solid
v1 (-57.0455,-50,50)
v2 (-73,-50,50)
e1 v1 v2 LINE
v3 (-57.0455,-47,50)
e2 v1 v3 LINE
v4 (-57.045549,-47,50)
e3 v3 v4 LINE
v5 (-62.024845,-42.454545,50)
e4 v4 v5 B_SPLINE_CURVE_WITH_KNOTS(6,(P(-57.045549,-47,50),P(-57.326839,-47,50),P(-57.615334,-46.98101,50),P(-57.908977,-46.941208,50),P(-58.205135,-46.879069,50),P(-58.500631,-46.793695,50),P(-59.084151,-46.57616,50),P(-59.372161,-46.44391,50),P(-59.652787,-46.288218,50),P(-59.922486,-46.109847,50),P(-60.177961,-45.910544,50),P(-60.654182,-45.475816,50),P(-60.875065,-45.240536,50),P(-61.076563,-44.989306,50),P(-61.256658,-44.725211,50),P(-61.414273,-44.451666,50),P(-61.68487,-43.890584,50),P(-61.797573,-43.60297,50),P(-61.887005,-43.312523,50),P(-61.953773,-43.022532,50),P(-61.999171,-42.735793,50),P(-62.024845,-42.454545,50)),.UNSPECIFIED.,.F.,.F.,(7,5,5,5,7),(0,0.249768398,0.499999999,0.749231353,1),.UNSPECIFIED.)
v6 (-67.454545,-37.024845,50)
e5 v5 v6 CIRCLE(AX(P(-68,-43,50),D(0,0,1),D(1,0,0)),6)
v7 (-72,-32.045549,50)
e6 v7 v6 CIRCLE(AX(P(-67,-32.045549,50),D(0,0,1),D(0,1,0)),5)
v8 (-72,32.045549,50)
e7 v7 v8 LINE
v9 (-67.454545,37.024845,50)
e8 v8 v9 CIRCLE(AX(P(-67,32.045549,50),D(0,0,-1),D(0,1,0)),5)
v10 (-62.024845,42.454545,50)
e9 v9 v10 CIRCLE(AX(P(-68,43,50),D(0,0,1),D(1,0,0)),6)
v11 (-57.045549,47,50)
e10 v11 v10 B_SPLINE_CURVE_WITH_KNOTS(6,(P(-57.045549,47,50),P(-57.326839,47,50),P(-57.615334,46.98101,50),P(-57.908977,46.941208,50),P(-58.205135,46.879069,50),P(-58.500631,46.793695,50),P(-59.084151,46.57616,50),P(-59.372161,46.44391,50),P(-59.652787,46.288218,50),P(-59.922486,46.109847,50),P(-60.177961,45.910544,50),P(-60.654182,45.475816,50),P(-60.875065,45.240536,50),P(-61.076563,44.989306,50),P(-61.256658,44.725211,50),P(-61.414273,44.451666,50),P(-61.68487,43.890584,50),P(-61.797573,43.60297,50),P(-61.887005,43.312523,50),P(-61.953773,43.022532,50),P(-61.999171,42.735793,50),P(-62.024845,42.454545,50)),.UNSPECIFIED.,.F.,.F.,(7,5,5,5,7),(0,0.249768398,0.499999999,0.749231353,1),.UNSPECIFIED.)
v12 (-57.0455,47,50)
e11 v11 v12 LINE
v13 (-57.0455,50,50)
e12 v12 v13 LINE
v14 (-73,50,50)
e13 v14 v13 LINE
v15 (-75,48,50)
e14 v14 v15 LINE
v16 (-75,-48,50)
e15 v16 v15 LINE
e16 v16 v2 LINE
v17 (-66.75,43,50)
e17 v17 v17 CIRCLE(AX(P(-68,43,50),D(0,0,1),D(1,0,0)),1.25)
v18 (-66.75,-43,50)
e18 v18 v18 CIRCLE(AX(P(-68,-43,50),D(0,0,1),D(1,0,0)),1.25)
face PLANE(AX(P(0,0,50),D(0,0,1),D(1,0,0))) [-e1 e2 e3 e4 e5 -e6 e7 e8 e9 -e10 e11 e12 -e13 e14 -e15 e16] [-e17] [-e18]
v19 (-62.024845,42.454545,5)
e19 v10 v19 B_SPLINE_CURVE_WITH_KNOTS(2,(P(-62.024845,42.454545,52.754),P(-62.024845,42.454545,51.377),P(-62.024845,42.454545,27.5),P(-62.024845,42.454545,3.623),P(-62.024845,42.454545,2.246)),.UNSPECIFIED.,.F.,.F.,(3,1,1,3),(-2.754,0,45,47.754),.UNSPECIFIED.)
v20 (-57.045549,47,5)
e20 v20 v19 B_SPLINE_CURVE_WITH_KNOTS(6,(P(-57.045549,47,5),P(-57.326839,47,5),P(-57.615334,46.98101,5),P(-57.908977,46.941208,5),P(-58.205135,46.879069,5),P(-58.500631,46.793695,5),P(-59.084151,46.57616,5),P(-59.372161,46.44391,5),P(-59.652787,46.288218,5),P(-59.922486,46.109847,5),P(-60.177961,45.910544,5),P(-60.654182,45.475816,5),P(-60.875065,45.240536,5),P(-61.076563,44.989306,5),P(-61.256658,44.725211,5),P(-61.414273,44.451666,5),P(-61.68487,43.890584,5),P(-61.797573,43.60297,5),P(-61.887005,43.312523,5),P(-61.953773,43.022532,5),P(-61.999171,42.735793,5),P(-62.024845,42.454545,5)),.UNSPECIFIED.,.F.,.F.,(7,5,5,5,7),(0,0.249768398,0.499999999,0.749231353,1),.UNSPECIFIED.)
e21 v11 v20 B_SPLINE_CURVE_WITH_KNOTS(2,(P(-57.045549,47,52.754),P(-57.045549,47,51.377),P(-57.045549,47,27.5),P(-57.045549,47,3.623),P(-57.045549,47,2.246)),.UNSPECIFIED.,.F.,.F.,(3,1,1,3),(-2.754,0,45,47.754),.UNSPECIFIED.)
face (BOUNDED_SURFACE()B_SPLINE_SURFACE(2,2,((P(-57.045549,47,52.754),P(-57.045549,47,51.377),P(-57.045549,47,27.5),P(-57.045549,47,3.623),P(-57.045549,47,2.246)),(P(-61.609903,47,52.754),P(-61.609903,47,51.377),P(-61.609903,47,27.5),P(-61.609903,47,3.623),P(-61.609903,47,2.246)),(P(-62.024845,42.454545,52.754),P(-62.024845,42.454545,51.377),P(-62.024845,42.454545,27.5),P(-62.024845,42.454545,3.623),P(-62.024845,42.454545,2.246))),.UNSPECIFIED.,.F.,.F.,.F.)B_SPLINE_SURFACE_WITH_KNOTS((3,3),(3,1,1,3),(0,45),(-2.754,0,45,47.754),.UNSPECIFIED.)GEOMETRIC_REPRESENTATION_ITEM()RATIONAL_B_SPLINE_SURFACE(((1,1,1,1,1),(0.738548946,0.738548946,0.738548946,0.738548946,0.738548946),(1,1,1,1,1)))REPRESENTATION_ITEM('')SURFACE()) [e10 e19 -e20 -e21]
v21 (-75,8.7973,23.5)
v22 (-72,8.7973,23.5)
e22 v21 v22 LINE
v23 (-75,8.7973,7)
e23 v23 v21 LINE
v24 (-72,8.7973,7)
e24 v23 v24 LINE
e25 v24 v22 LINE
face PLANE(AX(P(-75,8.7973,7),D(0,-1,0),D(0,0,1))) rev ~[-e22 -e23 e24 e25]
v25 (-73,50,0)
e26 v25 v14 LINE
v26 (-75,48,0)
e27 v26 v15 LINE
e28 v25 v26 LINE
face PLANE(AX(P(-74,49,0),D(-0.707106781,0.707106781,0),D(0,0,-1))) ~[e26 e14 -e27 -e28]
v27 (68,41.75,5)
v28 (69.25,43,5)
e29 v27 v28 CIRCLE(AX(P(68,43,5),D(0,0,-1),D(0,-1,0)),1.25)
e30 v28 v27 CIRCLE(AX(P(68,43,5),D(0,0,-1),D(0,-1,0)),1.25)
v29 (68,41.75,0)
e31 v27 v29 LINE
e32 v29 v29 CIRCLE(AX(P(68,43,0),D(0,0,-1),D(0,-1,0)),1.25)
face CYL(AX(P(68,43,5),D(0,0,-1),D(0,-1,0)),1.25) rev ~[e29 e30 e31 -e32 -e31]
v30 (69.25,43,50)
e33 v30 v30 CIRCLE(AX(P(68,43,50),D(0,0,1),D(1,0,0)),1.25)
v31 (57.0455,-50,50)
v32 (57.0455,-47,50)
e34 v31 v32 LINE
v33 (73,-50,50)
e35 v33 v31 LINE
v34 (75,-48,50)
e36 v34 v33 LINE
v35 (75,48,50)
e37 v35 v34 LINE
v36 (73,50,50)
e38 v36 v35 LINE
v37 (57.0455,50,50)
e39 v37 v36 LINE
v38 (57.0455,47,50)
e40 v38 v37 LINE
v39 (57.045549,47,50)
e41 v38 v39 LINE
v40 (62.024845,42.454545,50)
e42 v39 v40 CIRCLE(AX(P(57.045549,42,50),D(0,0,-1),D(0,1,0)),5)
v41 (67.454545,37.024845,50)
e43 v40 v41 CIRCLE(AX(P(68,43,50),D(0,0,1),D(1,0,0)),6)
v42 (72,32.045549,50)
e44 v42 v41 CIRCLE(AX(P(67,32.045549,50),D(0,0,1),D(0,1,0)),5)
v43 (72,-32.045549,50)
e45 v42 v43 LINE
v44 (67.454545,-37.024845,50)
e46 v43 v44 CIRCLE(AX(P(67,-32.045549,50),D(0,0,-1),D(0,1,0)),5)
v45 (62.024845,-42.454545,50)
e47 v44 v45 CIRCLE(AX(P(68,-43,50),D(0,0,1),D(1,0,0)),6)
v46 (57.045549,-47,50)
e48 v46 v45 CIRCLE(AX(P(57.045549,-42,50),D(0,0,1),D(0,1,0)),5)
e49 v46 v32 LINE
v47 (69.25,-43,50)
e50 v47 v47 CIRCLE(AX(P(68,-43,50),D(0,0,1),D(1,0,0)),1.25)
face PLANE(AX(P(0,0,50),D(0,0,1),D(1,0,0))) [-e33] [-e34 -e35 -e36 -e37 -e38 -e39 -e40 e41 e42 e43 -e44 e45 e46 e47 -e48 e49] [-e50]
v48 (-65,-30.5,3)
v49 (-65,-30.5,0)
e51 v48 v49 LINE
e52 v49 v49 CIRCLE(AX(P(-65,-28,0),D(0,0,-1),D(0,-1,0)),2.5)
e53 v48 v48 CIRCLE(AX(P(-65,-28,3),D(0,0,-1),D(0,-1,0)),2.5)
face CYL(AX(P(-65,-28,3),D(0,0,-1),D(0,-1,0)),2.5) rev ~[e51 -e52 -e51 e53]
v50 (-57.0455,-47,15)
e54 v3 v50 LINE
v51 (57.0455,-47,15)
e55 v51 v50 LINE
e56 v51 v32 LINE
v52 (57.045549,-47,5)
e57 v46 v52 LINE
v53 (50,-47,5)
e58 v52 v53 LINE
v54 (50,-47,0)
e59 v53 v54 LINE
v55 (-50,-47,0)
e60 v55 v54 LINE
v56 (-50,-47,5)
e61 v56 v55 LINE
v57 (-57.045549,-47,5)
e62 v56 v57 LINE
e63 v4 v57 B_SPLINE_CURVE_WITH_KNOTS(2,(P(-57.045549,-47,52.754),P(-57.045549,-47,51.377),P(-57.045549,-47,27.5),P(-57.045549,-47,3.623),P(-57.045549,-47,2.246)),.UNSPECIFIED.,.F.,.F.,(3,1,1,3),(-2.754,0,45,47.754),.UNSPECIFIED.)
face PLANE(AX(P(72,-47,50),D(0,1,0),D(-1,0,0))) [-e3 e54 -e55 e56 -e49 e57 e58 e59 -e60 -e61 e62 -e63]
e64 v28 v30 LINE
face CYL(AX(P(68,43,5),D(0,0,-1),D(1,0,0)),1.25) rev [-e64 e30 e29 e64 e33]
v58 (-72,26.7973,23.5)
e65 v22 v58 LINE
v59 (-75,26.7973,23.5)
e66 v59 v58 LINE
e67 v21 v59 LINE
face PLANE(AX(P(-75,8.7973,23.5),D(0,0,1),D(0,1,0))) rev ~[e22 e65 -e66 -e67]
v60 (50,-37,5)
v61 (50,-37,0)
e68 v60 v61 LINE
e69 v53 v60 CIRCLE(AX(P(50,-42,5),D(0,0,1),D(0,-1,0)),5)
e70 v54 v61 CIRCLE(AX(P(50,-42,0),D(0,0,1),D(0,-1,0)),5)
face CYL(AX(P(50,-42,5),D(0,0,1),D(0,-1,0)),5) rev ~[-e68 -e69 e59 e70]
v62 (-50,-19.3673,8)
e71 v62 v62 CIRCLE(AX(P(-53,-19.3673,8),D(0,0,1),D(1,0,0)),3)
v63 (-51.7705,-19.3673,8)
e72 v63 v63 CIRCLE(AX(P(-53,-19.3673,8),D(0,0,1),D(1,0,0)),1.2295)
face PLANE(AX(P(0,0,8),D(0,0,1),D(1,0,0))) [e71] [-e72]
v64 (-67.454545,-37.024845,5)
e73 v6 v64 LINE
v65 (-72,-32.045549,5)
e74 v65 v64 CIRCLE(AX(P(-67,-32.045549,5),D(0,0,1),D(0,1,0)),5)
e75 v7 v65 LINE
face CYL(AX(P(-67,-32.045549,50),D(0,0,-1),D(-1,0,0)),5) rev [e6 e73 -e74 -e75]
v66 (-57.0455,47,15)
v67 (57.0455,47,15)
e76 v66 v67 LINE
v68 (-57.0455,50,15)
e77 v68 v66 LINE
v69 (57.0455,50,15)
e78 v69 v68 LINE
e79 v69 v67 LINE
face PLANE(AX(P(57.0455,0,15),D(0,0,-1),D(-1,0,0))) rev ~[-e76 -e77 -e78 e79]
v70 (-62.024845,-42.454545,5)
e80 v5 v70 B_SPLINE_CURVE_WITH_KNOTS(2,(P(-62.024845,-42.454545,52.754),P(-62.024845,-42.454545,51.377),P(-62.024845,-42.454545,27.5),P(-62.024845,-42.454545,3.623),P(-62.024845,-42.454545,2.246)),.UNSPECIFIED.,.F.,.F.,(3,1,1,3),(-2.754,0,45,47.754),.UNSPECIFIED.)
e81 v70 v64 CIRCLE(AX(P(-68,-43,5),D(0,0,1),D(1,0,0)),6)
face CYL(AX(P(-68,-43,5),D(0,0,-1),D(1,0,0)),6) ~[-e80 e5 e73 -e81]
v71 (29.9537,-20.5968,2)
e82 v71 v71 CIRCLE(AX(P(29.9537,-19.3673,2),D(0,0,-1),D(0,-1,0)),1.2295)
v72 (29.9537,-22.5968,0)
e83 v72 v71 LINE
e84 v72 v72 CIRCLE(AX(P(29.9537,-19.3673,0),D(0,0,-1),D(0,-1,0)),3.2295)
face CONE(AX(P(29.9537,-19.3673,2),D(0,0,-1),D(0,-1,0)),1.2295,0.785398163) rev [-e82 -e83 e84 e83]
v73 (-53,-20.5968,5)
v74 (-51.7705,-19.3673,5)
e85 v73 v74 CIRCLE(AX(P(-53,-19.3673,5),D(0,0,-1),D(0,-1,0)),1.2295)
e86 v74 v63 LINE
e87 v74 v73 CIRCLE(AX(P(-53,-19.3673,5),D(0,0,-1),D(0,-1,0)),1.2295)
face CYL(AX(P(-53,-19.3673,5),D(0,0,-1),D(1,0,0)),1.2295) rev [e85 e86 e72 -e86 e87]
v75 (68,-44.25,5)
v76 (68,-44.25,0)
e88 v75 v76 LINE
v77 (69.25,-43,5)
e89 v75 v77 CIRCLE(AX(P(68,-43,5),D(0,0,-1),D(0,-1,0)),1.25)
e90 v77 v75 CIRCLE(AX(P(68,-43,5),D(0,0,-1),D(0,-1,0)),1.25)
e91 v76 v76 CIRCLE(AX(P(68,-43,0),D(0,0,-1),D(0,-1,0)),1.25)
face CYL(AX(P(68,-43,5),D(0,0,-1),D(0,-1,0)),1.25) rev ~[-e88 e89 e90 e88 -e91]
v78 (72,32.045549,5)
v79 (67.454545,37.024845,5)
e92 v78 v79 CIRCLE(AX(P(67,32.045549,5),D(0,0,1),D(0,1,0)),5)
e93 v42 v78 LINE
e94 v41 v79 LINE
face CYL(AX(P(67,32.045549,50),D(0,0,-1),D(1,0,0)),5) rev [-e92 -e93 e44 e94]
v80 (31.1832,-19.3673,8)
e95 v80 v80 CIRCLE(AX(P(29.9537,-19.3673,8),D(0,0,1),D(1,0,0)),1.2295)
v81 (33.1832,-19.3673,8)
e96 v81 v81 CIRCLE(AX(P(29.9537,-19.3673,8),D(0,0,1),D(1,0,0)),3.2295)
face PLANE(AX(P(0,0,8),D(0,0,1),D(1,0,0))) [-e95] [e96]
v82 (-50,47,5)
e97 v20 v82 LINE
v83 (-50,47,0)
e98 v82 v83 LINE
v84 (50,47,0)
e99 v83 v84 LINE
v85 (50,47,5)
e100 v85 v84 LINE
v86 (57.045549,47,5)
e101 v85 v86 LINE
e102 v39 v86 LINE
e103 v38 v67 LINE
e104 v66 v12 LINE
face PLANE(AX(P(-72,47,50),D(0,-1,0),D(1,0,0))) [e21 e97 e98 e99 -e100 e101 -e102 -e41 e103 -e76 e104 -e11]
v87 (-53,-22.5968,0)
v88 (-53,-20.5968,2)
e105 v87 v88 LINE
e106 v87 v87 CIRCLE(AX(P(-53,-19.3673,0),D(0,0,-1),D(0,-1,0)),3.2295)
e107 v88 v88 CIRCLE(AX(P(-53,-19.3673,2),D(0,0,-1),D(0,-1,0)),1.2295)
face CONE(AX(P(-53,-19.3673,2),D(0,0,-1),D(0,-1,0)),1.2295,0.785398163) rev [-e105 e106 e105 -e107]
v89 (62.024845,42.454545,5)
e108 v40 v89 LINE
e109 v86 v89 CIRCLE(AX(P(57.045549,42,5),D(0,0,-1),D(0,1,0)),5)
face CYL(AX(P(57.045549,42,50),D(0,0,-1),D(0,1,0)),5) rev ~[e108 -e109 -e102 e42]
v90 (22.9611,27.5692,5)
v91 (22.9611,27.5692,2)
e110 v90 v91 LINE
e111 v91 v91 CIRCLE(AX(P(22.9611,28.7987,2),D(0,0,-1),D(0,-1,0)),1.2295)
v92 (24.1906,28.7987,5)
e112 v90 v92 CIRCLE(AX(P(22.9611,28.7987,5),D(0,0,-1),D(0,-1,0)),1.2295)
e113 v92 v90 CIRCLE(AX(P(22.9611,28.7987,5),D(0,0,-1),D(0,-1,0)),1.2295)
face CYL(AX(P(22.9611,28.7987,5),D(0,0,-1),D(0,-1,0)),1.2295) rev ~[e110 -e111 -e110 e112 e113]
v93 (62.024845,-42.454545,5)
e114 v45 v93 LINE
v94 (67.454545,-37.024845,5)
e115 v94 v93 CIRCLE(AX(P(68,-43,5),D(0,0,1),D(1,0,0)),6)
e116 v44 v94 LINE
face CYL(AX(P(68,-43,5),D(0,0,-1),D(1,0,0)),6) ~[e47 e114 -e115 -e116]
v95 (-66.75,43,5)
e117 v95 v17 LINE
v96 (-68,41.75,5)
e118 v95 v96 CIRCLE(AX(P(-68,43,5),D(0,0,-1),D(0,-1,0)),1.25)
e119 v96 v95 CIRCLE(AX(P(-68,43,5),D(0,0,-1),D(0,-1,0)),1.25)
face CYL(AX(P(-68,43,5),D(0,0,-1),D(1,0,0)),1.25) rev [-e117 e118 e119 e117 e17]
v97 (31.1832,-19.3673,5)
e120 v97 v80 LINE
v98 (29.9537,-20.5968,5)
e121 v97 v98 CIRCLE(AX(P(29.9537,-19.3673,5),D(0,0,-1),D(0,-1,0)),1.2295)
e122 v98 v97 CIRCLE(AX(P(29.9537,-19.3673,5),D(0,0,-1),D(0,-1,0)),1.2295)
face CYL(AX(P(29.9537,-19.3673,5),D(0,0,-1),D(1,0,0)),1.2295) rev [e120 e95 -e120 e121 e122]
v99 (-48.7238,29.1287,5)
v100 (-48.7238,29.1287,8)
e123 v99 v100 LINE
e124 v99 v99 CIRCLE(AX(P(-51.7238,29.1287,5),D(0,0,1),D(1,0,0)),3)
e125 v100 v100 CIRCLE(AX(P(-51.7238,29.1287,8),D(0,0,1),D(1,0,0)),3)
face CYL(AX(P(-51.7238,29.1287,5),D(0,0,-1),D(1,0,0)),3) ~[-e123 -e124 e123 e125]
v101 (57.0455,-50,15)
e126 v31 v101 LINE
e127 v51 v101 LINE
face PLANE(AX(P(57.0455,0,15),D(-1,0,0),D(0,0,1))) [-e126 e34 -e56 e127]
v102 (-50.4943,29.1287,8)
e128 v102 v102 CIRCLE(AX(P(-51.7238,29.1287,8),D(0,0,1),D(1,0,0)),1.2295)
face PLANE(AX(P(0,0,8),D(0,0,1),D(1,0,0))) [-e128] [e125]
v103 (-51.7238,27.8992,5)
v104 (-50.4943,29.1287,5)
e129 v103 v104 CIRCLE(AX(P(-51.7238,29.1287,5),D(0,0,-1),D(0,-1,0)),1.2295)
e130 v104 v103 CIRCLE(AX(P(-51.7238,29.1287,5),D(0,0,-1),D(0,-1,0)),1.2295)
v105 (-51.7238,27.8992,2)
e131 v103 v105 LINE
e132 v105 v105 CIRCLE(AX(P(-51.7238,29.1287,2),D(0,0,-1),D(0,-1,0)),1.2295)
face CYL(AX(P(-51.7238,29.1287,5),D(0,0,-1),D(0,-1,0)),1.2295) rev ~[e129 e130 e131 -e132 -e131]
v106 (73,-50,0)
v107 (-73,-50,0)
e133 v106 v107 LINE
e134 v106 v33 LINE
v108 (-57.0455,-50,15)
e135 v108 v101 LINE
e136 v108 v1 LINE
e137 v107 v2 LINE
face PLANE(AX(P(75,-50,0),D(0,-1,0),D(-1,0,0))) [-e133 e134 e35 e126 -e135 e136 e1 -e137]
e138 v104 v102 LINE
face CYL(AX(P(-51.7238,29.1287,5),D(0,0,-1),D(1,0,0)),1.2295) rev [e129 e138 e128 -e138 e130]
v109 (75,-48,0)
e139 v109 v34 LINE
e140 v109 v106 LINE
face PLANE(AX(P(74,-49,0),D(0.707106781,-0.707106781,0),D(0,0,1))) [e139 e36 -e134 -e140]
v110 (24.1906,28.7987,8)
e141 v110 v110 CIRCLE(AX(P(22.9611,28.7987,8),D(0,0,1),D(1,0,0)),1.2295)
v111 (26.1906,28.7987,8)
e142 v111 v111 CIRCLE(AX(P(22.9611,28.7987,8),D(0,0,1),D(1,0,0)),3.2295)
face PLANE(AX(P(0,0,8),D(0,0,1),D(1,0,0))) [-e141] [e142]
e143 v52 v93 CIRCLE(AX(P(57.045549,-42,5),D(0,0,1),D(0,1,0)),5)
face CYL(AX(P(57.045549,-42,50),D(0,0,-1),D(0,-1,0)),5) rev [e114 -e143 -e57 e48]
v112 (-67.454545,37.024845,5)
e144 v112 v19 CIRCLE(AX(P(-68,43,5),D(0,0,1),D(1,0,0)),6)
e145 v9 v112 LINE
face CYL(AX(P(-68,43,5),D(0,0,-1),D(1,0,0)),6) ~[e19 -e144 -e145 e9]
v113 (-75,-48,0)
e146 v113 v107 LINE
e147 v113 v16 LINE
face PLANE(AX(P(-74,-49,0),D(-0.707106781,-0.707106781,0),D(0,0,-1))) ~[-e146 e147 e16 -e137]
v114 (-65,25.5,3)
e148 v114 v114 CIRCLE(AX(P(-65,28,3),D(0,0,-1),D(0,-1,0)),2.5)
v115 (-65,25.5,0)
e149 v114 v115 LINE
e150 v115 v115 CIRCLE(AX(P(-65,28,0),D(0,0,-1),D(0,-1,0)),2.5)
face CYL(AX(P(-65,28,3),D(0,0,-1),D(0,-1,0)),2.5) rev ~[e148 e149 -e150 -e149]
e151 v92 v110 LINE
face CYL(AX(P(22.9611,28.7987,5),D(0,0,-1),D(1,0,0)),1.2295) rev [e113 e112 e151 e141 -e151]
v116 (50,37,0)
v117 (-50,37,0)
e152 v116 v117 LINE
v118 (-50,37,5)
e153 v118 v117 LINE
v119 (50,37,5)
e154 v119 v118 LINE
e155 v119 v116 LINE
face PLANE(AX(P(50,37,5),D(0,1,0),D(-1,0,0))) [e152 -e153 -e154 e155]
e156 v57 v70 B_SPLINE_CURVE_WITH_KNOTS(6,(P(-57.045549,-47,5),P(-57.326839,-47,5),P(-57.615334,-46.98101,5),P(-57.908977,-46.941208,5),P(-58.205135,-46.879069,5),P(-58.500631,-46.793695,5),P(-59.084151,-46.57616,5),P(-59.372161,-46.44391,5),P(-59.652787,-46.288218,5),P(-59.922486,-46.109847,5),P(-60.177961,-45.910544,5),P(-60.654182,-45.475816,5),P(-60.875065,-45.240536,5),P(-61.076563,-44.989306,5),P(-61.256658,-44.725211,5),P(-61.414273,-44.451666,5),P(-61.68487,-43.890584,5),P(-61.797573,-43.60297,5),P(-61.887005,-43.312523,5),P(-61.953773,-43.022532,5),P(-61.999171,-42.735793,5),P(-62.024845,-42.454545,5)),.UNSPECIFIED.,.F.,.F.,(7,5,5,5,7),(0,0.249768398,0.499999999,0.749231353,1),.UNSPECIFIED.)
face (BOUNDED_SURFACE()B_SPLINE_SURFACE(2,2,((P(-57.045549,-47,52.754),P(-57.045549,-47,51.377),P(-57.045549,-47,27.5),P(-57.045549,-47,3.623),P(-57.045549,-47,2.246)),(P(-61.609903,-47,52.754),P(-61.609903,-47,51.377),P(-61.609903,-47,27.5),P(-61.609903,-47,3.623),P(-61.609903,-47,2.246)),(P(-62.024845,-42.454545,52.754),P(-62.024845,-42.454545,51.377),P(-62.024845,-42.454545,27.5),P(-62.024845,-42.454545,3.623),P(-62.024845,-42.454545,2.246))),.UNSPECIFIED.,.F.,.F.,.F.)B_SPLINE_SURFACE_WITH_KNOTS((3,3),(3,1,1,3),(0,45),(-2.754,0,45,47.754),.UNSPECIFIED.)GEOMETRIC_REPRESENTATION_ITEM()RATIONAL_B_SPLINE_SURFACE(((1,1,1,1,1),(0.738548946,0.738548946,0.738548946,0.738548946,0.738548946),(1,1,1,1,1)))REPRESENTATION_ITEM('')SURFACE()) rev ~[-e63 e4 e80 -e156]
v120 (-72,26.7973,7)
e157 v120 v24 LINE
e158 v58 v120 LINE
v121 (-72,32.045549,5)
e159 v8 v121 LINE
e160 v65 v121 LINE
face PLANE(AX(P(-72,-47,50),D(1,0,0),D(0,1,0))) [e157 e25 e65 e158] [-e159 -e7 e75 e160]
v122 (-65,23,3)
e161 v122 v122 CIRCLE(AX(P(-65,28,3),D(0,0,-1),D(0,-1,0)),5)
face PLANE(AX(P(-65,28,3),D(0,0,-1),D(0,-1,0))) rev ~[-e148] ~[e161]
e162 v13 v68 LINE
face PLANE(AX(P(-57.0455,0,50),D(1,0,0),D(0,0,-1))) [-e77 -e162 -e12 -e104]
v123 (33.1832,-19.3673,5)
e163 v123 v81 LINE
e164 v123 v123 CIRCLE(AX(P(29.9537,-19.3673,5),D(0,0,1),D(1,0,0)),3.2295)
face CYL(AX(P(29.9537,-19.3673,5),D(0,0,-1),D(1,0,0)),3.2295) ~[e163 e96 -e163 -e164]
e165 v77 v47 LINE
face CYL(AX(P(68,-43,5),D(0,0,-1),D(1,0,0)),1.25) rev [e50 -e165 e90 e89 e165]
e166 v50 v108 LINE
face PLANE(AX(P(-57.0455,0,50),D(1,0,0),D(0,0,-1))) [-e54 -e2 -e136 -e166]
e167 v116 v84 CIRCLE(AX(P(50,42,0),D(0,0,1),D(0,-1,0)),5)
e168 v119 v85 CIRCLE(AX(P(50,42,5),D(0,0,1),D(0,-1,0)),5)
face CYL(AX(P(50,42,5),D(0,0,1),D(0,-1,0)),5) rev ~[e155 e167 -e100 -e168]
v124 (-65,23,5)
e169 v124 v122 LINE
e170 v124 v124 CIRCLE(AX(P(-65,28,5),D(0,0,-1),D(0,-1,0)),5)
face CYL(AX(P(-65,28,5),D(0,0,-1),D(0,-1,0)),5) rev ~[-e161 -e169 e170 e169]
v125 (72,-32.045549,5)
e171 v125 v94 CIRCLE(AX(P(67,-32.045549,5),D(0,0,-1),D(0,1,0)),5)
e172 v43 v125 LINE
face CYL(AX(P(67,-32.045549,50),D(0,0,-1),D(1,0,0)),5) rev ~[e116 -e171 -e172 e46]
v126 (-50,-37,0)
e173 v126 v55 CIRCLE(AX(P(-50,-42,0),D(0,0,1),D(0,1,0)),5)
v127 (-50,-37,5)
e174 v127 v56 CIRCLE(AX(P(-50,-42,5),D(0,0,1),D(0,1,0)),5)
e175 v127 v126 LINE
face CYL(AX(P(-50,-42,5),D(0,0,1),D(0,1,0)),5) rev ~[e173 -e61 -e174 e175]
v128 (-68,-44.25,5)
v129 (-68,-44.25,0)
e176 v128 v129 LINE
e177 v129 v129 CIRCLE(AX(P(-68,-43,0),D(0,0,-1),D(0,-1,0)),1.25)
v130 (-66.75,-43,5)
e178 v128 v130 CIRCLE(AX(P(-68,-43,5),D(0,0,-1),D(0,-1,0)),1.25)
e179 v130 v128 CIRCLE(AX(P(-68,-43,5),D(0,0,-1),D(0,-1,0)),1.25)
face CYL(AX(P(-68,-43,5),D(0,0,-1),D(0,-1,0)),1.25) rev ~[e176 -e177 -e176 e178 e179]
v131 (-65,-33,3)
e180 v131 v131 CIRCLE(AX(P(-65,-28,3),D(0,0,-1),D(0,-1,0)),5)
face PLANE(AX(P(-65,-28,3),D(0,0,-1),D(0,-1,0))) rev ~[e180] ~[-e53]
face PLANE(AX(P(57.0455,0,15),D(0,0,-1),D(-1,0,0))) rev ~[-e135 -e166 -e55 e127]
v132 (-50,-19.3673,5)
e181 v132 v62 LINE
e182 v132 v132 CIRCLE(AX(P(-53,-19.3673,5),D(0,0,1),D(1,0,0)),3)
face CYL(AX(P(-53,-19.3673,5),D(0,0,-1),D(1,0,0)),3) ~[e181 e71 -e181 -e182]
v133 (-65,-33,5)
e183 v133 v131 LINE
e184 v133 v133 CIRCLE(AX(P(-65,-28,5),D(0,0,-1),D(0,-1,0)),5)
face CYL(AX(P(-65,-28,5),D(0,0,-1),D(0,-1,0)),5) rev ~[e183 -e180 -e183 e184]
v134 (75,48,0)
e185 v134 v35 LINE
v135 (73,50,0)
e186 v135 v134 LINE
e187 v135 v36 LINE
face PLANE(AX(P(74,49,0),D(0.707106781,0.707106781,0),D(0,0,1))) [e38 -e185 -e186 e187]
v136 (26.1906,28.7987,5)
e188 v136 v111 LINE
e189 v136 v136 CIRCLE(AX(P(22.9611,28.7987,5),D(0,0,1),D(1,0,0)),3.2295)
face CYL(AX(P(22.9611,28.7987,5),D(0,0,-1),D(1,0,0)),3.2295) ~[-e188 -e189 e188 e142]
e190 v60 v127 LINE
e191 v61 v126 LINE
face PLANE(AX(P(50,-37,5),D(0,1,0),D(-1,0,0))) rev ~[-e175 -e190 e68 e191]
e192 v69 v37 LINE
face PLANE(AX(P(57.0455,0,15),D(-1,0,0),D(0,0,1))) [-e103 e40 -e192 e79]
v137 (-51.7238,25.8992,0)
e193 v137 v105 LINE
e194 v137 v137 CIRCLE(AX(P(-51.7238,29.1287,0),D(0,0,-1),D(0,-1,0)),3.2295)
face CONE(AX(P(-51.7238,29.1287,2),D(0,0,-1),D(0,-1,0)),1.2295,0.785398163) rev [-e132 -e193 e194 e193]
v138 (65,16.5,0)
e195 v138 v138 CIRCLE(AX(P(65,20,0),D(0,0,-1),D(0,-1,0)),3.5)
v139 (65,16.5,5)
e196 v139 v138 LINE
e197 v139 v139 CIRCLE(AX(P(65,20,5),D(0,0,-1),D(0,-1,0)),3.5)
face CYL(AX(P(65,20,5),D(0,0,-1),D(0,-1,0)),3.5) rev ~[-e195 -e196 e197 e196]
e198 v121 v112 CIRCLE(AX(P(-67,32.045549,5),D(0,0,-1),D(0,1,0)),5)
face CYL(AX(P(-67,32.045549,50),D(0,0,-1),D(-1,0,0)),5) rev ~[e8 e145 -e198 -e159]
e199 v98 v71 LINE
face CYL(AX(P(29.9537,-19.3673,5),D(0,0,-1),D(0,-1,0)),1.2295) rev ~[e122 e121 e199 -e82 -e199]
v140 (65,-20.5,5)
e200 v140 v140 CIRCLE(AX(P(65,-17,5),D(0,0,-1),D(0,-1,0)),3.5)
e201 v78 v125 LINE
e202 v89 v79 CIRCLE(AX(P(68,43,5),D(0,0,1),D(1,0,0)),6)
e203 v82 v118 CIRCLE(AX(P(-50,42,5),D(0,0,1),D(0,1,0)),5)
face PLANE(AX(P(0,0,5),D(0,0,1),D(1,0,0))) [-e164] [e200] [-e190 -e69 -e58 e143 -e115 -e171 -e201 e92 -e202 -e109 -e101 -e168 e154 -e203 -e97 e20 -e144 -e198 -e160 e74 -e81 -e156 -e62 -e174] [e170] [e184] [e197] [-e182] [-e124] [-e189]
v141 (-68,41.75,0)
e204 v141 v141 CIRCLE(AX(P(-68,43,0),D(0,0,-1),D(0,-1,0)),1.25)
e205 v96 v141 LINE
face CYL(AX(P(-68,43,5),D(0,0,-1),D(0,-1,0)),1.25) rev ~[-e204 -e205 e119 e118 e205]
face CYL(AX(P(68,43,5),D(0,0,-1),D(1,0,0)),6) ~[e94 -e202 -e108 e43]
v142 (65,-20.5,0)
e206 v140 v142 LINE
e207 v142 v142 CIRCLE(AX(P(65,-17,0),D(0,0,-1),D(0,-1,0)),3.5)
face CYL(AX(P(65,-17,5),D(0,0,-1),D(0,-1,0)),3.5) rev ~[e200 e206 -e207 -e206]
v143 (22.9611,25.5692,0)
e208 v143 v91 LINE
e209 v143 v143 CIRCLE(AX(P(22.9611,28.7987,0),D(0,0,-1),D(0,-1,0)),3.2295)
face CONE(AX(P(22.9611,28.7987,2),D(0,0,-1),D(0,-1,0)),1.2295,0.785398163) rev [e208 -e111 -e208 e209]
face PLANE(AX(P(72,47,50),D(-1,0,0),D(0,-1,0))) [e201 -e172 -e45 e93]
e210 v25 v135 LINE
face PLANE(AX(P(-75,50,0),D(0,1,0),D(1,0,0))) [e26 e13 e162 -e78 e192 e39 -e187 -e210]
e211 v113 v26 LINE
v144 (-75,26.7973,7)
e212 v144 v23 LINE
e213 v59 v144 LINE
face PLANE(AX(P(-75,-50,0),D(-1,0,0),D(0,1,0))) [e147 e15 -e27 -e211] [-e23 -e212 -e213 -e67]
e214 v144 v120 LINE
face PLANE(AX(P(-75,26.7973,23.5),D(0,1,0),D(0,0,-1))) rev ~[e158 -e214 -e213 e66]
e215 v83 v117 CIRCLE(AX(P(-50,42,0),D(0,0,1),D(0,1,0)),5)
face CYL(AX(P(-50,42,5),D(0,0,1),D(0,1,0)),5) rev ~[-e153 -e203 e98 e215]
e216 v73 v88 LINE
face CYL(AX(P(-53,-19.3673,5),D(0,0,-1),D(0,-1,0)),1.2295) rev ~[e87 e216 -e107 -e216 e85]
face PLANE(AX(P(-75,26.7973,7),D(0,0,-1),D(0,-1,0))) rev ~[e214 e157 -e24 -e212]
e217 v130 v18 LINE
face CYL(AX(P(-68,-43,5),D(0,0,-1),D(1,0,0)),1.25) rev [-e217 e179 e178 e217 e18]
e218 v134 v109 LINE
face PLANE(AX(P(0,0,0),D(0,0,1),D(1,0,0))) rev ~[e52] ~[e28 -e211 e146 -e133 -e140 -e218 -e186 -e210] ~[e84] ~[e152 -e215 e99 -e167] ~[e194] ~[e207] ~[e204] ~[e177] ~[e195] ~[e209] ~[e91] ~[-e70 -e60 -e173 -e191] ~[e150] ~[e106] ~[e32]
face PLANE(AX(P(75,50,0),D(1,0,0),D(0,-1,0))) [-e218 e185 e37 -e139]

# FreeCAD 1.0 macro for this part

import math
import FreeCAD as App
import Part
import Sketcher
from FreeCAD import Vector
Q = App.Units.Quantity


def edges_at(feature, points):
    """Names of the edges that pass closest to the given points."""
    edges = feature.Shape.Edges
    near = lambda p: min(range(len(edges)), key=lambda i: edges[i].distToShape(Part.Vertex(*p))[0])
    return sorted({f"Edge{near(p) + 1}" for p in points})


def add_polygon(sketch, points):
    """Adds a closed chain of lines whose ends are joined by coincident constraints."""
    first, n = sketch.GeometryCount, len(points)
    for a, b in zip(points, points[1:] + points[:1]):
        sketch.addGeometry(Part.LineSegment(App.Vector(*a, 0), App.Vector(*b, 0)), False)
    for i in range(n):
        sketch.addConstraint(Sketcher.Constraint("Coincident", first + i, 2, first + (i + 1) % n, 1))

doc = App.newDocument("Part")
body = doc.addObject("PartDesign::Body", "Body")

sketch1 = body.newObject("Sketcher::SketchObject", "Sketch")
sketch1.AttachmentSupport = (doc.getObject("XY_Plane"), [""])
sketch1.MapMode = "FlatFace"
add_polygon(sketch1, [(75, 50), (-75, 50), (-75, -50), (75, -50)])
sketch1.addConstraint([
    Sketcher.Constraint("Horizontal", 0),
    Sketcher.Constraint("Vertical", 1),
    Sketcher.Constraint("Horizontal", 2),
    Sketcher.Constraint("Vertical", 3),
    Sketcher.Constraint("Symmetric", 0, 2, 2, 2, -1, 1),
    Sketcher.Constraint("DistanceX", 0, 2, 0, 1, Q("150 mm")),
    Sketcher.Constraint("DistanceY", 1, 2, 1, 1, Q("100 mm")),
])
pad1 = body.newObject("PartDesign::Pad", "Pad")
pad1.Profile = sketch1
pad1.Length = 50

sketch2 = body.newObject("Sketcher::SketchObject", "Sketch001")
sketch2.AttachmentSupport = (doc.getObject("XY_Plane"), [""])
sketch2.MapMode = "FlatFace"
sketch2.AttachmentOffset = App.Placement(Vector(0, 0, 50), App.Rotation())
add_polygon(sketch2, [(72, 47), (-72, 47), (-72, -47), (72, -47)])
sketch2.addConstraint([
    Sketcher.Constraint("Horizontal", 0),
    Sketcher.Constraint("Vertical", 1),
    Sketcher.Constraint("Horizontal", 2),
    Sketcher.Constraint("Vertical", 3),
    Sketcher.Constraint("Symmetric", 0, 2, 2, 2, -1, 1),
    Sketcher.Constraint("DistanceX", 0, 2, 0, 1, Q("144 mm")),
    Sketcher.Constraint("DistanceY", 1, 2, 1, 1, Q("94 mm")),
])
pocket1 = body.newObject("PartDesign::Pocket", "Pocket")
pocket1.Profile = sketch2
pocket1.Length = 45

sketch3 = body.newObject("Sketcher::SketchObject", "Sketch002")
sketch3.AttachmentSupport = (doc.getObject("YZ_Plane"), [""])
sketch3.MapMode = "FlatFace"
sketch3.AttachmentOffset = App.Placement(Vector(0, 0, -75), App.Rotation())
add_polygon(sketch3, [(9, 24), (27, 24), (27, 7), (9, 7)])
sketch3.addConstraint([
    Sketcher.Constraint("Horizontal", 0),
    Sketcher.Constraint("Vertical", 1),
    Sketcher.Constraint("Horizontal", 2),
    Sketcher.Constraint("Vertical", 3),
    Sketcher.Constraint("DistanceX", 0, 1, 0, 2, Q("18 mm")),
    Sketcher.Constraint("DistanceY", 1, 2, 1, 1, Q("16.5 mm")),
    Sketcher.Constraint("DistanceY", -1, 1, 1, 2, Q("7 mm")),
    Sketcher.Constraint("DistanceX", -1, 1, 0, 2, Q("26.7973 mm")),
])
pocket2 = body.newObject("PartDesign::Pocket", "Pocket001")
pocket2.Profile = sketch3
pocket2.Length = 3
pocket2.Reversed = True

sketch4 = body.newObject("Sketcher::SketchObject", "Sketch003")
sketch4.AttachmentSupport = (doc.getObject("XY_Plane"), [""])
sketch4.MapMode = "FlatFace"
sketch4.AttachmentOffset = App.Placement(Vector(0, 0, 5), App.Rotation())
sketch4.addGeometry([
    Part.Circle(Vector(-68, -43, 0), Vector(0, 0, 1), 1.2),
    Part.Circle(Vector(-68, 43, 0), Vector(0, 0, 1), 1.2),
    Part.Circle(Vector(68, -43, 0), Vector(0, 0, 1), 1.2),
    Part.Circle(Vector(68, 43, 0), Vector(0, 0, 1), 1.2),
], False)
sketch4.addConstraint([
    Sketcher.Constraint("Equal", 0, 1),
    Sketcher.Constraint("Equal", 1, 2),
    Sketcher.Constraint("Equal", 2, 3),
    Sketcher.Constraint("Symmetric", 1, 3, 2, 3, -1, 1),
    Sketcher.Constraint("Symmetric", 0, 3, 3, 3, -1, 1),
    Sketcher.Constraint("Symmetric", 0, 3, 2, 3, -2),
    Sketcher.Constraint("Diameter", 0, Q("2.5 mm")),
    Sketcher.Constraint("DistanceX", 0, 3, -1, 1, Q("68 mm")),
    Sketcher.Constraint("DistanceY", 0, 3, -1, 1, Q("43 mm")),
])
doc.recompute()
hole = body.newObject("PartDesign::Hole", "Hole")
hole.Profile = sketch4
hole.ThreadType = "None"
hole.Diameter = 2.5
hole.DepthType = "ThroughAll"

sketch5 = body.newObject("Sketcher::SketchObject", "Sketch004")
sketch5.AttachmentSupport = (doc.getObject("XY_Plane"), [""])
sketch5.MapMode = "FlatFace"
sketch5.AttachmentOffset = App.Placement(Vector(0, 0, 5), App.Rotation())
sketch5.addGeometry([
    Part.Circle(Vector(-68, -43, 0), Vector(0, 0, 1), 6),
    Part.Circle(Vector(-68, -43, 0), Vector(0, 0, 1), 1.2),
    Part.Circle(Vector(-68, 43, 0), Vector(0, 0, 1), 6),
    Part.Circle(Vector(-68, 43, 0), Vector(0, 0, 1), 1.2),
    Part.Circle(Vector(68, -43, 0), Vector(0, 0, 1), 6),
    Part.Circle(Vector(68, -43, 0), Vector(0, 0, 1), 1.2),
    Part.Circle(Vector(68, 43, 0), Vector(0, 0, 1), 6),
    Part.Circle(Vector(68, 43, 0), Vector(0, 0, 1), 1.2),
], False)
sketch5.addConstraint([
    Sketcher.Constraint("Coincident", 1, 3, 0, 3),
    Sketcher.Constraint("Coincident", 3, 3, 2, 3),
    Sketcher.Constraint("Coincident", 5, 3, 4, 3),
    Sketcher.Constraint("Coincident", 7, 3, 6, 3),
    Sketcher.Constraint("Equal", 0, 2),
    Sketcher.Constraint("Equal", 1, 3),
    Sketcher.Constraint("Equal", 2, 4),
    Sketcher.Constraint("Equal", 3, 5),
    Sketcher.Constraint("Equal", 4, 6),
    Sketcher.Constraint("Equal", 5, 7),
    Sketcher.Constraint("Symmetric", 2, 3, 4, 3, -1, 1),
    Sketcher.Constraint("Symmetric", 0, 3, 6, 3, -1, 1),
    Sketcher.Constraint("Symmetric", 0, 3, 4, 3, -2),
    Sketcher.Constraint("Diameter", 0, Q("12 mm")),
    Sketcher.Constraint("Diameter", 1, Q("2.5 mm")),
    Sketcher.Constraint("DistanceX", 0, 3, -1, 1, Q("68 mm")),
    Sketcher.Constraint("DistanceY", 0, 3, -1, 1, Q("43 mm")),
])
pad2 = body.newObject("PartDesign::Pad", "Pad001")
pad2.Profile = sketch5
pad2.Length = 45
doc.recompute()

fillet = body.newObject("PartDesign::Fillet", "Fillet")
fillet.Base = (pad2, edges_at(pad2, [
    (-72, 38.528, 27.5),
    (-63.528, 47, 27.5),
    (-63.528, -47, 27.5),
    (-72, -38.528, 27.5),
    (63.528, 47, 27.5),
    (63.528, -47, 27.5),
    (72, 38.528, 27.5),
    (72, -38.528, 27.5),
]))
fillet.Radius = 5

sketch6 = body.newObject("Sketcher::SketchObject", "Sketch005")
sketch6.AttachmentSupport = (doc.getObject("XY_Plane"), [""])
sketch6.MapMode = "FlatFace"
sketch6.AttachmentOffset = App.Placement(Vector(0, 0, 5), App.Rotation())
sketch6.addGeometry([
    Part.Circle(Vector(65, -17, 0), Vector(0, 0, 1), 3.5),
    Part.Circle(Vector(65, 20, 0), Vector(0, 0, 1), 3.5),
], False)
sketch6.addConstraint([
    Sketcher.Constraint("Equal", 0, 1),
    Sketcher.Constraint("Vertical", 0, 3, 1, 3),
    Sketcher.Constraint("Diameter", 0, Q("7 mm")),
    Sketcher.Constraint("DistanceX", -1, 1, 0, 3, Q("65 mm")),
    Sketcher.Constraint("DistanceY", 0, 3, -1, 1, Q("17 mm")),
    Sketcher.Constraint("DistanceY", -1, 1, 1, 3, Q("20 mm")),
])
doc.recompute()
hole2 = body.newObject("PartDesign::Hole", "Hole001")
hole2.Profile = sketch6
hole2.ThreadType = "None"
hole2.Diameter = 7
hole2.DepthType = "ThroughAll"

sketch7 = body.newObject("Sketcher::SketchObject", "Sketch006")
sketch7.AttachmentSupport = (doc.getObject("XY_Plane"), [""])
sketch7.MapMode = "FlatFace"
sketch7.AttachmentOffset = App.Placement(Vector(0, 0, 5), App.Rotation())
sketch7.addGeometry([
    Part.ArcOfCircle(Part.Circle(Vector(-50, -42, 0), Vector(0, 0, 1), 5), math.radians(90), math.radians(270)),
    Part.LineSegment(Vector(-50, -47, 0), Vector(50, -47, 0)),
    Part.ArcOfCircle(Part.Circle(Vector(50, -42, 0), Vector(0, 0, 1), 5), math.radians(-90), math.radians(90)),
    Part.LineSegment(Vector(50, -37, 0), Vector(-50, -37, 0)),
    Part.LineSegment(Vector(50, 47, 0), Vector(-50, 47, 0)),
    Part.ArcOfCircle(Part.Circle(Vector(-50, 42, 0), Vector(0, 0, 1), 5), math.radians(90), math.radians(270)),
    Part.LineSegment(Vector(-50, 37, 0), Vector(50, 37, 0)),
    Part.ArcOfCircle(Part.Circle(Vector(50, 42, 0), Vector(0, 0, 1), 5), math.radians(-90), math.radians(90)),
], False)
sketch7.addConstraint([
    Sketcher.Constraint("Tangent", 0, 2, 1, 1),
    Sketcher.Constraint("Tangent", 1, 2, 2, 1),
    Sketcher.Constraint("Tangent", 2, 2, 3, 1),
    Sketcher.Constraint("Tangent", 3, 2, 0, 1),
    Sketcher.Constraint("Tangent", 4, 2, 5, 1),
    Sketcher.Constraint("Tangent", 5, 2, 6, 1),
    Sketcher.Constraint("Tangent", 6, 2, 7, 1),
    Sketcher.Constraint("Tangent", 7, 2, 4, 1),
    Sketcher.Constraint("Horizontal", 1),
    Sketcher.Constraint("Horizontal", 3),
    Sketcher.Constraint("Horizontal", 4),
    Sketcher.Constraint("Horizontal", 6),
    Sketcher.Constraint("Equal", 2, 5),
    Sketcher.Constraint("Symmetric", 2, 3, 5, 3, -1, 1),
    Sketcher.Constraint("Vertical", 0, 3, 5, 3),
    Sketcher.Constraint("Vertical", 2, 3, 7, 3),
    Sketcher.Constraint("Radius", 0, Q("5 mm")),
    Sketcher.Constraint("DistanceX", 1, 1, 1, 2, Q("100 mm")),
    Sketcher.Constraint("DistanceY", 0, 3, -1, 1, Q("42 mm")),
])
pocket3 = body.newObject("PartDesign::Pocket", "Pocket002")
pocket3.Profile = sketch7
pocket3.Type = "ThroughAll"

sketch8 = body.newObject("Sketcher::SketchObject", "Sketch007")
sketch8.AttachmentSupport = (doc.getObject("XY_Plane"), [""])
sketch8.MapMode = "FlatFace"
sketch8.AttachmentOffset = App.Placement(Vector(0, 0, 5), App.Rotation())
sketch8.addGeometry([
    Part.Circle(Vector(-53, -19.4, 0), Vector(0, 0, 1), 1.2),
    Part.Circle(Vector(-51.7, 29.1, 0), Vector(0, 0, 1), 1.2),
    Part.Circle(Vector(30, -19.4, 0), Vector(0, 0, 1), 1.2),
    Part.Circle(Vector(23, 28.8, 0), Vector(0, 0, 1), 1.2),
], False)
sketch8.addConstraint([
    Sketcher.Constraint("Equal", 0, 1),
    Sketcher.Constraint("Equal", 1, 2),
    Sketcher.Constraint("Equal", 2, 3),
    Sketcher.Constraint("Horizontal", 0, 3, 2, 3),
    Sketcher.Constraint("Diameter", 0, Q("2.459 mm")),
    Sketcher.Constraint("DistanceX", 0, 3, -1, 1, Q("53 mm")),
    Sketcher.Constraint("DistanceY", 3, 3, 1, 3, Q("0.33 mm")),
    Sketcher.Constraint("DistanceX", -1, 1, 3, 3, Q("22.961 mm")),
    Sketcher.Constraint("DistanceY", 0, 3, 1, 3, Q("48.496 mm")),
    Sketcher.Constraint("DistanceX", 1, 3, 3, 3, Q("74.685 mm")),
    Sketcher.Constraint("DistanceY", 0, 3, -1, 1, Q("19.3673 mm")),
    Sketcher.Constraint("DistanceX", -1, 1, 2, 3, Q("29.9537 mm")),
])
doc.recompute()
hole3 = body.newObject("PartDesign::Hole", "Hole002")
hole3.Profile = sketch8
hole3.ThreadType = "None"
hole3.Diameter = 2.459
hole3.DepthType = "ThroughAll"
doc.recompute()

chamfer = body.newObject("PartDesign::Chamfer", "Chamfer")
chamfer.Base = (hole3, edges_at(hole3, [
    (-53, -18.138, 0),
    (29.954, -18.138, 0),
    (-51.724, 30.358, 0),
    (22.961, 30.028, 0),
]))
chamfer.Size = 2

sketch9 = body.newObject("Sketcher::SketchObject", "Sketch008")
sketch9.AttachmentSupport = (doc.getObject("XY_Plane"), [""])
sketch9.MapMode = "FlatFace"
sketch9.AttachmentOffset = App.Placement(Vector(0, 0, 5), App.Rotation())
sketch9.addGeometry([
    Part.Circle(Vector(-65, -28, 0), Vector(0, 0, 1), 2.5),
    Part.Circle(Vector(-65, 28, 0), Vector(0, 0, 1), 2.5),
], False)
sketch9.addConstraint([
    Sketcher.Constraint("Equal", 0, 1),
    Sketcher.Constraint("Symmetric", 0, 3, 1, 3, -1),
    Sketcher.Constraint("Diameter", 0, Q("5 mm")),
    Sketcher.Constraint("DistanceX", 0, 3, -1, 1, Q("65 mm")),
    Sketcher.Constraint("DistanceY", 0, 3, -1, 1, Q("28 mm")),
])
doc.recompute()
hole4 = body.newObject("PartDesign::Hole", "Hole003")
hole4.Profile = sketch9
hole4.ThreadType = "None"
hole4.Diameter = 5
hole4.DepthType = "ThroughAll"
hole4.HoleCutType = "Counterbore"
hole4.HoleCutDiameter = 10
hole4.HoleCutDepth = 2

sketch10 = body.newObject("Sketcher::SketchObject", "Sketch009")
sketch10.AttachmentSupport = (doc.getObject("XZ_Plane"), [""])
sketch10.MapMode = "FlatFace"
add_polygon(sketch10, [(-57, 15), (-57, 50), (57, 50), (57, 15)])
sketch10.addConstraint([
    Sketcher.Constraint("Vertical", 0),
    Sketcher.Constraint("Horizontal", 1),
    Sketcher.Constraint("Vertical", 2),
    Sketcher.Constraint("Horizontal", 3),
    Sketcher.Constraint("DistanceY", 0, 1, 0, 2, Q("35 mm")),
    Sketcher.Constraint("DistanceY", -1, 1, 0, 2, Q("50 mm")),
    Sketcher.Constraint("DistanceX", 1, 1, 1, 2, Q("114.091 mm")),
    Sketcher.Constraint("DistanceX", 0, 2, -1, 1, Q("57.0455 mm")),
])
pocket4 = body.newObject("PartDesign::Pocket", "Pocket003")
pocket4.Profile = sketch10
pocket4.Type = "ThroughAll"
pocket4.Midplane = True
doc.recompute()

chamfer2 = body.newObject("PartDesign::Chamfer", "Chamfer001")
chamfer2.Base = (pocket4, edges_at(pocket4, [
    (75, 50, 25),
    (-75, 50, 25),
    (-75, -50, 25),
    (75, -50, 25),
]))
chamfer2.Size = 2

sketch11 = body.newObject("Sketcher::SketchObject", "Sketch010")
sketch11.AttachmentSupport = (doc.getObject("XY_Plane"), [""])
sketch11.MapMode = "FlatFace"
sketch11.AttachmentOffset = App.Placement(Vector(0, 0, 5), App.Rotation())
sketch11.addGeometry([
    Part.Circle(Vector(-51.7, 29.1, 0), Vector(0, 0, 1), 3),
    Part.Circle(Vector(-51.7, 29.1, 0), Vector(0, 0, 1), 1.2),
    Part.Circle(Vector(23, 28.8, 0), Vector(0, 0, 1), 3.2),
    Part.Circle(Vector(23, 28.8, 0), Vector(0, 0, 1), 1.2),
    Part.Circle(Vector(30, -19.4, 0), Vector(0, 0, 1), 3.2),
    Part.Circle(Vector(30, -19.4, 0), Vector(0, 0, 1), 1.2),
    Part.Circle(Vector(-53, -19.4, 0), Vector(0, 0, 1), 3),
    Part.Circle(Vector(-53, -19.4, 0), Vector(0, 0, 1), 1.2),
], False)
sketch11.addConstraint([
    Sketcher.Constraint("Coincident", 1, 3, 0, 3),
    Sketcher.Constraint("Coincident", 3, 3, 2, 3),
    Sketcher.Constraint("Coincident", 5, 3, 4, 3),
    Sketcher.Constraint("Coincident", 7, 3, 6, 3),
    Sketcher.Constraint("Equal", 1, 3),
    Sketcher.Constraint("Equal", 2, 4),
    Sketcher.Constraint("Equal", 3, 5),
    Sketcher.Constraint("Equal", 0, 6),
    Sketcher.Constraint("Equal", 5, 7),
    Sketcher.Constraint("Horizontal", 5, 3, 6, 3),
    Sketcher.Constraint("Diameter", 0, Q("6 mm")),
    Sketcher.Constraint("Diameter", 1, Q("2.459 mm")),
    Sketcher.Constraint("Diameter", 2, Q("6.459 mm")),
    Sketcher.Constraint("DistanceX", 6, 3, -1, 1, Q("53 mm")),
    Sketcher.Constraint("DistanceY", 2, 3, 0, 3, Q("0.33 mm")),
    Sketcher.Constraint("DistanceX", -1, 1, 2, 3, Q("22.961 mm")),
    Sketcher.Constraint("DistanceX", 0, 3, 2, 3, Q("74.685 mm")),
    Sketcher.Constraint("DistanceY", 4, 3, 2, 3, Q("48.166 mm")),
    Sketcher.Constraint("DistanceY", -1, 1, 0, 3, Q("29.1287 mm")),
    Sketcher.Constraint("DistanceX", -1, 1, 4, 3, Q("29.9537 mm")),
])
pad3 = body.newObject("PartDesign::Pad", "Pad002")
pad3.Profile = sketch11
pad3.Length = 3

doc.recompute()
